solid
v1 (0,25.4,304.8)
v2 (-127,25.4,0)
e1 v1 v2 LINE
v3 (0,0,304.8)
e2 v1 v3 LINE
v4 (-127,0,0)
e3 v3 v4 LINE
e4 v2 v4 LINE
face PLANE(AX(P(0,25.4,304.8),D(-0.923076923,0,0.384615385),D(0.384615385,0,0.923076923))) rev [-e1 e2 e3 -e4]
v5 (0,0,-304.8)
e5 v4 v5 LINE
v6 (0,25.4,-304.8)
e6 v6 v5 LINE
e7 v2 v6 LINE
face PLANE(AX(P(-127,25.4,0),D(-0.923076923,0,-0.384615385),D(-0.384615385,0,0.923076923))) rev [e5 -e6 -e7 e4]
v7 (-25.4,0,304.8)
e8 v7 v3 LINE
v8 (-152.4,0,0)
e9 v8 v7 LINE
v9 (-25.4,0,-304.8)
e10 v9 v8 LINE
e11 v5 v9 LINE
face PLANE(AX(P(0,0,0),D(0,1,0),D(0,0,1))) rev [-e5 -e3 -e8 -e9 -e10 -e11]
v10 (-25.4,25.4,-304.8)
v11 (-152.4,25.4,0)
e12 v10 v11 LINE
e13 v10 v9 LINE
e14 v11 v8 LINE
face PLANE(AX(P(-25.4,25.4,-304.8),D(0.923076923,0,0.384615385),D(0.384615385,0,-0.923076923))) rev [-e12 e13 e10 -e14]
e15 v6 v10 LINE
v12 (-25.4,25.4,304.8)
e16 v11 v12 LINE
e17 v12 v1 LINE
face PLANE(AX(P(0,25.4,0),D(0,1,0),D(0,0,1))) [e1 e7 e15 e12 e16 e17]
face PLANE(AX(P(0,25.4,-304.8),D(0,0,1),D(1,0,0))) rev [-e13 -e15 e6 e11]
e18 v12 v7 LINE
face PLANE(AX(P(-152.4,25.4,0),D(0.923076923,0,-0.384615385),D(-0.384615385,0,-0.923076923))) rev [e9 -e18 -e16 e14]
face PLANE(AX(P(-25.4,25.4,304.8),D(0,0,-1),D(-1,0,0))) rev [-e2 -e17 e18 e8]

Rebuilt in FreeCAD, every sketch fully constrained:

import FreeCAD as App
import Part
import Sketcher
Q = App.Units.Quantity

doc = App.newDocument("Part")
body = doc.addObject("PartDesign::Body", "Body")

# Sketch on XZ plane
sketch1 = doc.addObject("Sketcher::SketchObject", "Sketch")
body.addObject(sketch1)
sketch1.AttachmentSupport = (doc.XZ_Plane, [""])
sketch1.MapMode = "FlatFace"
sketch1.addGeometry([
    Part.LineSegment(App.Vector(0, -305, 0), App.Vector(-25, -305, 0)),  # 0
    Part.LineSegment(App.Vector(-25, -305, 0), App.Vector(-152, 0, 0)),  # 1
    Part.LineSegment(App.Vector(-152, 0, 0), App.Vector(-25, 305, 0)),  # 2
    Part.LineSegment(App.Vector(-25, 305, 0), App.Vector(0, 305, 0)),  # 3
    Part.LineSegment(App.Vector(0, 305, 0), App.Vector(-127, 0, 0)),  # 4
    Part.LineSegment(App.Vector(-127, 0, 0), App.Vector(0, -305, 0)),  # 5
], False)
sketch1.addConstraint([
    Sketcher.Constraint("Coincident", 0, 2, 1, 1),
    Sketcher.Constraint("Coincident", 1, 2, 2, 1),
    Sketcher.Constraint("Coincident", 2, 2, 3, 1),
    Sketcher.Constraint("Coincident", 3, 2, 4, 1),
    Sketcher.Constraint("Coincident", 4, 2, 5, 1),
    Sketcher.Constraint("Coincident", 5, 2, 0, 1),
    Sketcher.Constraint("Horizontal", 0),
    Sketcher.Constraint("Horizontal", 3),
    Sketcher.Constraint("Symmetric", 3, 2, 5, 2, -1, 1),
    Sketcher.Constraint("PointOnObject", 1, 2, -1),
    Sketcher.Constraint("PointOnObject", 3, 2, -2),
    Sketcher.Constraint("PointOnObject", 4, 2, -1),
    Sketcher.Constraint("Parallel", 2, 4),
    Sketcher.Constraint("Parallel", 1, 5),
    Sketcher.Constraint("DistanceX", 0, 2, 0, 1, Q("1 in")),
    Sketcher.Constraint("Distance", 1, Q("13 in")),
    Sketcher.Constraint("DistanceY", 0, 2, -1, 1, Q("12 in")),
])
pad1 = doc.addObject("PartDesign::Pad", "Pad")
body.addObject(pad1)
pad1.Profile = sketch1
pad1.Length = Q("1 in")
pad1.Reversed = True

doc.recompute()
